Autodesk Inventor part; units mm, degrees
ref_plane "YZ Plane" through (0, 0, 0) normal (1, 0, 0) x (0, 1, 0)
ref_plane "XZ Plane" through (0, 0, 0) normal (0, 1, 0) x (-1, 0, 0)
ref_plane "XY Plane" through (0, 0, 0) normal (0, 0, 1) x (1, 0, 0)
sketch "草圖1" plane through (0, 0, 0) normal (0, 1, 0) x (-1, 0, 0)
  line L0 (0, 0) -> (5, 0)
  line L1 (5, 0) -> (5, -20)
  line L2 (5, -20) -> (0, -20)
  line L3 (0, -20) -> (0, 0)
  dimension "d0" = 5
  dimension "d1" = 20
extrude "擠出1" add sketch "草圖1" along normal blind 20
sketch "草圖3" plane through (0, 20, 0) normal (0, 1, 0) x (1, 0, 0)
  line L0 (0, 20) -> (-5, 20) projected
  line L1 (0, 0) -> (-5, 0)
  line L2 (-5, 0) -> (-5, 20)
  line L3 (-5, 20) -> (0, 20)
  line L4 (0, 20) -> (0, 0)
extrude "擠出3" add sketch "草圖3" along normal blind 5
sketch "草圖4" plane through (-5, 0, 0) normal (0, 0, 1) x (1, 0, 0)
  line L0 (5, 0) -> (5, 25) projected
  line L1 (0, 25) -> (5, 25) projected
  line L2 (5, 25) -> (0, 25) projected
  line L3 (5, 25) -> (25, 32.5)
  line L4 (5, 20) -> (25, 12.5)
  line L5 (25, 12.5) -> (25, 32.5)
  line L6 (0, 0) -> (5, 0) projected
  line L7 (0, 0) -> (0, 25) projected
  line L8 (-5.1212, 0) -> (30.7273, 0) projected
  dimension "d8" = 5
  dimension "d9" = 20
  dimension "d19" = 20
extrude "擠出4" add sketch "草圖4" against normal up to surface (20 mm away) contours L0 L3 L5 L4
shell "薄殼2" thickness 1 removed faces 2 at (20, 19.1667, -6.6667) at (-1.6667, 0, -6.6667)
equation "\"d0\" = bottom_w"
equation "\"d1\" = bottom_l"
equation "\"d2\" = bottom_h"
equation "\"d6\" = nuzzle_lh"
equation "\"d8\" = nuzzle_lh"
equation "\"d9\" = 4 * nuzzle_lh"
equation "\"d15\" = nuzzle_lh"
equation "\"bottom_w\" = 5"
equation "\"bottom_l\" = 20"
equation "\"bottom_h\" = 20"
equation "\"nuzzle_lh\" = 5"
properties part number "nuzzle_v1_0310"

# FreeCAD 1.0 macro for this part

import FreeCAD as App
import Part
import Sketcher
from FreeCAD import Vector
Q = App.Units.Quantity


def faces_at(feature, points):
    """Names of the faces that lie closest to the given points."""
    faces = feature.Shape.Faces
    near = lambda p: min(range(len(faces)), key=lambda i: faces[i].distToShape(Part.Vertex(*p))[0])
    return sorted({f"Face{near(p) + 1}" for p in points})


def add_polygon(sketch, points):
    """Adds a closed chain of lines whose ends are joined by coincident constraints."""
    first, n = sketch.GeometryCount, len(points)
    for a, b in zip(points, points[1:] + points[:1]):
        sketch.addGeometry(Part.LineSegment(App.Vector(*a, 0), App.Vector(*b, 0)), False)
    for i in range(n):
        sketch.addConstraint(Sketcher.Constraint("Coincident", first + i, 2, first + (i + 1) % n, 1))

doc = App.newDocument("Part")
params = doc.addObject("Spreadsheet::Sheet", "Params")
for row, (alias, value) in enumerate([
    ("sketch1_width", "5 mm"),
    ("sketch1_height", "20 mm"),
    ("pad1_length", "20 mm"),
    ("sketch2_width", "5 mm"),
    ("sketch2_height", "20 mm"),
    ("pad2_length", "5 mm"),
    ("sketch3_height", "5 mm"),
    ("sketch3_height2", "20 mm"),
    ("pad3_length", "20 mm"),
    ("thickness_wall", "1 mm"),
], start=1):
    params.set(f"A{row}", alias)
    params.set(f"B{row}", "=" + value)
    params.setAlias(f"B{row}", alias)

body = doc.addObject("PartDesign::Body", "Body")

sketch1 = body.newObject("Sketcher::SketchObject", "Sketch")
sketch1.AttachmentSupport = (doc.getObject("XZ_Plane"), [""])
sketch1.MapMode = "FlatFace"
add_polygon(sketch1, [(-5, 0), (0, 0), (0, -20), (-5, -20)])
sketch1.addConstraint([
    Sketcher.Constraint("Horizontal", 0),
    Sketcher.Constraint("Vertical", 1),
    Sketcher.Constraint("Horizontal", 2),
    Sketcher.Constraint("Vertical", 3),
    Sketcher.Constraint("Coincident", 0, 2, -1, 1),
    Sketcher.Constraint("DistanceX", 0, 1, 0, 2, Q("5 mm")),
    Sketcher.Constraint("DistanceY", 1, 2, 1, 1, Q("20 mm")),
])
sketch1.setExpression("Constraints[9]", "Params.sketch1_width")
sketch1.setExpression("Constraints[10]", "Params.sketch1_height")
pad1 = body.newObject("PartDesign::Pad", "Pad")
pad1.Profile = sketch1
pad1.setExpression("Length", "Params.pad1_length")
pad1.Reversed = True

sketch2 = body.newObject("Sketcher::SketchObject", "Sketch001")
sketch2.AttachmentSupport = (doc.getObject("XZ_Plane"), [""])
sketch2.MapMode = "FlatFace"
sketch2.AttachmentOffset = App.Placement(Vector(0, 0, -20), App.Rotation())
add_polygon(sketch2, [(0, 0), (0, -20), (-5, -20), (-5, 0)])
sketch2.addConstraint([
    Sketcher.Constraint("Vertical", 0),
    Sketcher.Constraint("Horizontal", 1),
    Sketcher.Constraint("Vertical", 2),
    Sketcher.Constraint("Horizontal", 3),
    Sketcher.Constraint("Coincident", 3, 2, -1, 1),
    Sketcher.Constraint("DistanceX", 1, 2, 1, 1, Q("5 mm")),
    Sketcher.Constraint("DistanceY", 0, 2, 0, 1, Q("20 mm")),
])
sketch2.setExpression("Constraints[9]", "Params.sketch2_width")
sketch2.setExpression("Constraints[10]", "Params.sketch2_height")
pad2 = body.newObject("PartDesign::Pad", "Pad001")
pad2.Profile = sketch2
pad2.setExpression("Length", "Params.pad2_length")
pad2.Reversed = True

sketch3 = body.newObject("Sketcher::SketchObject", "Sketch002")
sketch3.AttachmentSupport = (doc.getObject("XY_Plane"), [""])
sketch3.MapMode = "FlatFace"
add_polygon(sketch3, [(0, 25), (0, 20), (20, 12), (20, 32)])
sketch3.addConstraint([
    Sketcher.Constraint("Vertical", 0),
    Sketcher.Constraint("Vertical", 2),
    Sketcher.Constraint("PointOnObject", 0, 2, -2),
    Sketcher.Constraint("Equal", 1, 3),
    Sketcher.Constraint("DistanceY", 0, 2, 0, 1, Q("5 mm")),
    Sketcher.Constraint("DistanceY", 2, 1, 2, 2, Q("20 mm")),
    Sketcher.Constraint("DistanceY", -1, 1, 0, 2, Q("20 mm")),
    Sketcher.Constraint("DistanceX", -1, 1, 1, 2, Q("20 mm")),
])
sketch3.setExpression("Constraints[8]", "Params.sketch3_height")
sketch3.setExpression("Constraints[9]", "Params.sketch3_height2")
pad3 = body.newObject("PartDesign::Pad", "Pad002")
pad3.Profile = sketch3
pad3.setExpression("Length", "Params.pad3_length")
pad3.Reversed = True
doc.recompute()

thickness = body.newObject("PartDesign::Thickness", "Thickness")
thickness.Base = (pad3, faces_at(pad3, [(20, 19.167, -6.667), (-1.667, 0, -6.667)]))
thickness.setExpression("Value", "Params.thickness_wall")
thickness.Reversed = True
thickness.Join = "Intersection"

doc.recompute()
